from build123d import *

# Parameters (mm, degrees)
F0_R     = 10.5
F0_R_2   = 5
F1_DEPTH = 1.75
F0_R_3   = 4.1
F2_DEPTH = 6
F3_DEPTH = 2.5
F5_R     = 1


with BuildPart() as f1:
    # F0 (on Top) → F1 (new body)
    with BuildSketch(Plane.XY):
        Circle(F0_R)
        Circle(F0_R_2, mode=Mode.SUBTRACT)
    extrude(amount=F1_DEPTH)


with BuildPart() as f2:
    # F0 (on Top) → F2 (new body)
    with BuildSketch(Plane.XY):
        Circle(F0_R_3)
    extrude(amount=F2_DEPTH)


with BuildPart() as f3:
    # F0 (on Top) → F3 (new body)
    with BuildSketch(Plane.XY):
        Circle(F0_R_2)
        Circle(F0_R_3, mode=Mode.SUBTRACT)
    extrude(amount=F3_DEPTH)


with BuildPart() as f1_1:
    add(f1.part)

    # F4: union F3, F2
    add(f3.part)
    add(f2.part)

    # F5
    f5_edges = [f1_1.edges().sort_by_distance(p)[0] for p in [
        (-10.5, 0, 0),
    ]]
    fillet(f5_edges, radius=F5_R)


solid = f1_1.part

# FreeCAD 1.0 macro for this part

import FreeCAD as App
import Part
import Sketcher
Q = App.Units.Quantity


def edges_at(feature, points):
    """Names of the edges that pass closest to the given points."""
    edges = feature.Shape.Edges
    near = lambda p: min(range(len(edges)), key=lambda i: edges[i].distToShape(Part.Vertex(*p))[0])
    return sorted({f"Edge{near(p) + 1}" for p in points})

doc = App.newDocument("Part")
body = doc.addObject("PartDesign::Body", "Body")

# Sketch on XY plane
sketch1 = body.newObject("Sketcher::SketchObject", "Sketch")
sketch1.AttachmentSupport = (doc.getObject("XY_Plane"), [""])
sketch1.MapMode = "FlatFace"
sketch1.addGeometry([
    Part.Circle(App.Vector(0, 0, 0), App.Vector(0, 0, 1), 10.5),
    Part.Circle(App.Vector(0, 0, 0), App.Vector(0, 0, 1), 5),
], False)
sketch1.addConstraint([
    Sketcher.Constraint("Coincident", 0, 3, -1, 1),
    Sketcher.Constraint("Coincident", 1, 3, -1, 1),
    Sketcher.Constraint("Diameter", 0, Q("21 mm")),
    Sketcher.Constraint("Diameter", 1, Q("10 mm")),
])
pad1 = body.newObject("PartDesign::Pad", "Pad")
pad1.Profile = sketch1
pad1.Length = 1.75
body2 = doc.addObject("PartDesign::Body", "Body001")

# Sketch on XY plane
sketch2 = body2.newObject("Sketcher::SketchObject", "Sketch001")
sketch2.AttachmentSupport = (doc.getObject("XY_Plane001"), [""])
sketch2.MapMode = "FlatFace"
sketch2.addGeometry(Part.Circle(App.Vector(0, 0, 0), App.Vector(0, 0, 1), 4.1), False)
sketch2.addConstraint([
    Sketcher.Constraint("Coincident", 0, 3, -1, 1),
    Sketcher.Constraint("Diameter", 0, Q("8.2 mm")),
])
pad2 = body2.newObject("PartDesign::Pad", "Pad001")
pad2.Profile = sketch2
pad2.Length = 6
body3 = doc.addObject("PartDesign::Body", "Body002")

# Sketch on XY plane
sketch3 = body3.newObject("Sketcher::SketchObject", "Sketch002")
sketch3.AttachmentSupport = (doc.getObject("XY_Plane002"), [""])
sketch3.MapMode = "FlatFace"
sketch3.addGeometry([
    Part.Circle(App.Vector(0, 0, 0), App.Vector(0, 0, 1), 5),
    Part.Circle(App.Vector(0, 0, 0), App.Vector(0, 0, 1), 4.1),
], False)
sketch3.addConstraint([
    Sketcher.Constraint("Coincident", 0, 3, -1, 1),
    Sketcher.Constraint("Coincident", 1, 3, -1, 1),
    Sketcher.Constraint("Diameter", 0, Q("10 mm")),
    Sketcher.Constraint("Diameter", 1, Q("8.2 mm")),
])
pad3 = body3.newObject("PartDesign::Pad", "Pad002")
pad3.Profile = sketch3
pad3.Length = 2.5
doc.recompute()

boolean = body.newObject("PartDesign::Boolean", "Boolean")
boolean.Type = "Fuse"
boolean.addObjects([body3])
doc.recompute()

boolean2 = body.newObject("PartDesign::Boolean", "Boolean001")
boolean2.Type = "Fuse"
boolean2.addObjects([body2])
doc.recompute()

fillet = body.newObject("PartDesign::Fillet", "Fillet")
fillet.Base = (boolean2, edges_at(boolean2, [(-10.5, 0, 0)]))
fillet.Radius = 1

doc.recompute()
